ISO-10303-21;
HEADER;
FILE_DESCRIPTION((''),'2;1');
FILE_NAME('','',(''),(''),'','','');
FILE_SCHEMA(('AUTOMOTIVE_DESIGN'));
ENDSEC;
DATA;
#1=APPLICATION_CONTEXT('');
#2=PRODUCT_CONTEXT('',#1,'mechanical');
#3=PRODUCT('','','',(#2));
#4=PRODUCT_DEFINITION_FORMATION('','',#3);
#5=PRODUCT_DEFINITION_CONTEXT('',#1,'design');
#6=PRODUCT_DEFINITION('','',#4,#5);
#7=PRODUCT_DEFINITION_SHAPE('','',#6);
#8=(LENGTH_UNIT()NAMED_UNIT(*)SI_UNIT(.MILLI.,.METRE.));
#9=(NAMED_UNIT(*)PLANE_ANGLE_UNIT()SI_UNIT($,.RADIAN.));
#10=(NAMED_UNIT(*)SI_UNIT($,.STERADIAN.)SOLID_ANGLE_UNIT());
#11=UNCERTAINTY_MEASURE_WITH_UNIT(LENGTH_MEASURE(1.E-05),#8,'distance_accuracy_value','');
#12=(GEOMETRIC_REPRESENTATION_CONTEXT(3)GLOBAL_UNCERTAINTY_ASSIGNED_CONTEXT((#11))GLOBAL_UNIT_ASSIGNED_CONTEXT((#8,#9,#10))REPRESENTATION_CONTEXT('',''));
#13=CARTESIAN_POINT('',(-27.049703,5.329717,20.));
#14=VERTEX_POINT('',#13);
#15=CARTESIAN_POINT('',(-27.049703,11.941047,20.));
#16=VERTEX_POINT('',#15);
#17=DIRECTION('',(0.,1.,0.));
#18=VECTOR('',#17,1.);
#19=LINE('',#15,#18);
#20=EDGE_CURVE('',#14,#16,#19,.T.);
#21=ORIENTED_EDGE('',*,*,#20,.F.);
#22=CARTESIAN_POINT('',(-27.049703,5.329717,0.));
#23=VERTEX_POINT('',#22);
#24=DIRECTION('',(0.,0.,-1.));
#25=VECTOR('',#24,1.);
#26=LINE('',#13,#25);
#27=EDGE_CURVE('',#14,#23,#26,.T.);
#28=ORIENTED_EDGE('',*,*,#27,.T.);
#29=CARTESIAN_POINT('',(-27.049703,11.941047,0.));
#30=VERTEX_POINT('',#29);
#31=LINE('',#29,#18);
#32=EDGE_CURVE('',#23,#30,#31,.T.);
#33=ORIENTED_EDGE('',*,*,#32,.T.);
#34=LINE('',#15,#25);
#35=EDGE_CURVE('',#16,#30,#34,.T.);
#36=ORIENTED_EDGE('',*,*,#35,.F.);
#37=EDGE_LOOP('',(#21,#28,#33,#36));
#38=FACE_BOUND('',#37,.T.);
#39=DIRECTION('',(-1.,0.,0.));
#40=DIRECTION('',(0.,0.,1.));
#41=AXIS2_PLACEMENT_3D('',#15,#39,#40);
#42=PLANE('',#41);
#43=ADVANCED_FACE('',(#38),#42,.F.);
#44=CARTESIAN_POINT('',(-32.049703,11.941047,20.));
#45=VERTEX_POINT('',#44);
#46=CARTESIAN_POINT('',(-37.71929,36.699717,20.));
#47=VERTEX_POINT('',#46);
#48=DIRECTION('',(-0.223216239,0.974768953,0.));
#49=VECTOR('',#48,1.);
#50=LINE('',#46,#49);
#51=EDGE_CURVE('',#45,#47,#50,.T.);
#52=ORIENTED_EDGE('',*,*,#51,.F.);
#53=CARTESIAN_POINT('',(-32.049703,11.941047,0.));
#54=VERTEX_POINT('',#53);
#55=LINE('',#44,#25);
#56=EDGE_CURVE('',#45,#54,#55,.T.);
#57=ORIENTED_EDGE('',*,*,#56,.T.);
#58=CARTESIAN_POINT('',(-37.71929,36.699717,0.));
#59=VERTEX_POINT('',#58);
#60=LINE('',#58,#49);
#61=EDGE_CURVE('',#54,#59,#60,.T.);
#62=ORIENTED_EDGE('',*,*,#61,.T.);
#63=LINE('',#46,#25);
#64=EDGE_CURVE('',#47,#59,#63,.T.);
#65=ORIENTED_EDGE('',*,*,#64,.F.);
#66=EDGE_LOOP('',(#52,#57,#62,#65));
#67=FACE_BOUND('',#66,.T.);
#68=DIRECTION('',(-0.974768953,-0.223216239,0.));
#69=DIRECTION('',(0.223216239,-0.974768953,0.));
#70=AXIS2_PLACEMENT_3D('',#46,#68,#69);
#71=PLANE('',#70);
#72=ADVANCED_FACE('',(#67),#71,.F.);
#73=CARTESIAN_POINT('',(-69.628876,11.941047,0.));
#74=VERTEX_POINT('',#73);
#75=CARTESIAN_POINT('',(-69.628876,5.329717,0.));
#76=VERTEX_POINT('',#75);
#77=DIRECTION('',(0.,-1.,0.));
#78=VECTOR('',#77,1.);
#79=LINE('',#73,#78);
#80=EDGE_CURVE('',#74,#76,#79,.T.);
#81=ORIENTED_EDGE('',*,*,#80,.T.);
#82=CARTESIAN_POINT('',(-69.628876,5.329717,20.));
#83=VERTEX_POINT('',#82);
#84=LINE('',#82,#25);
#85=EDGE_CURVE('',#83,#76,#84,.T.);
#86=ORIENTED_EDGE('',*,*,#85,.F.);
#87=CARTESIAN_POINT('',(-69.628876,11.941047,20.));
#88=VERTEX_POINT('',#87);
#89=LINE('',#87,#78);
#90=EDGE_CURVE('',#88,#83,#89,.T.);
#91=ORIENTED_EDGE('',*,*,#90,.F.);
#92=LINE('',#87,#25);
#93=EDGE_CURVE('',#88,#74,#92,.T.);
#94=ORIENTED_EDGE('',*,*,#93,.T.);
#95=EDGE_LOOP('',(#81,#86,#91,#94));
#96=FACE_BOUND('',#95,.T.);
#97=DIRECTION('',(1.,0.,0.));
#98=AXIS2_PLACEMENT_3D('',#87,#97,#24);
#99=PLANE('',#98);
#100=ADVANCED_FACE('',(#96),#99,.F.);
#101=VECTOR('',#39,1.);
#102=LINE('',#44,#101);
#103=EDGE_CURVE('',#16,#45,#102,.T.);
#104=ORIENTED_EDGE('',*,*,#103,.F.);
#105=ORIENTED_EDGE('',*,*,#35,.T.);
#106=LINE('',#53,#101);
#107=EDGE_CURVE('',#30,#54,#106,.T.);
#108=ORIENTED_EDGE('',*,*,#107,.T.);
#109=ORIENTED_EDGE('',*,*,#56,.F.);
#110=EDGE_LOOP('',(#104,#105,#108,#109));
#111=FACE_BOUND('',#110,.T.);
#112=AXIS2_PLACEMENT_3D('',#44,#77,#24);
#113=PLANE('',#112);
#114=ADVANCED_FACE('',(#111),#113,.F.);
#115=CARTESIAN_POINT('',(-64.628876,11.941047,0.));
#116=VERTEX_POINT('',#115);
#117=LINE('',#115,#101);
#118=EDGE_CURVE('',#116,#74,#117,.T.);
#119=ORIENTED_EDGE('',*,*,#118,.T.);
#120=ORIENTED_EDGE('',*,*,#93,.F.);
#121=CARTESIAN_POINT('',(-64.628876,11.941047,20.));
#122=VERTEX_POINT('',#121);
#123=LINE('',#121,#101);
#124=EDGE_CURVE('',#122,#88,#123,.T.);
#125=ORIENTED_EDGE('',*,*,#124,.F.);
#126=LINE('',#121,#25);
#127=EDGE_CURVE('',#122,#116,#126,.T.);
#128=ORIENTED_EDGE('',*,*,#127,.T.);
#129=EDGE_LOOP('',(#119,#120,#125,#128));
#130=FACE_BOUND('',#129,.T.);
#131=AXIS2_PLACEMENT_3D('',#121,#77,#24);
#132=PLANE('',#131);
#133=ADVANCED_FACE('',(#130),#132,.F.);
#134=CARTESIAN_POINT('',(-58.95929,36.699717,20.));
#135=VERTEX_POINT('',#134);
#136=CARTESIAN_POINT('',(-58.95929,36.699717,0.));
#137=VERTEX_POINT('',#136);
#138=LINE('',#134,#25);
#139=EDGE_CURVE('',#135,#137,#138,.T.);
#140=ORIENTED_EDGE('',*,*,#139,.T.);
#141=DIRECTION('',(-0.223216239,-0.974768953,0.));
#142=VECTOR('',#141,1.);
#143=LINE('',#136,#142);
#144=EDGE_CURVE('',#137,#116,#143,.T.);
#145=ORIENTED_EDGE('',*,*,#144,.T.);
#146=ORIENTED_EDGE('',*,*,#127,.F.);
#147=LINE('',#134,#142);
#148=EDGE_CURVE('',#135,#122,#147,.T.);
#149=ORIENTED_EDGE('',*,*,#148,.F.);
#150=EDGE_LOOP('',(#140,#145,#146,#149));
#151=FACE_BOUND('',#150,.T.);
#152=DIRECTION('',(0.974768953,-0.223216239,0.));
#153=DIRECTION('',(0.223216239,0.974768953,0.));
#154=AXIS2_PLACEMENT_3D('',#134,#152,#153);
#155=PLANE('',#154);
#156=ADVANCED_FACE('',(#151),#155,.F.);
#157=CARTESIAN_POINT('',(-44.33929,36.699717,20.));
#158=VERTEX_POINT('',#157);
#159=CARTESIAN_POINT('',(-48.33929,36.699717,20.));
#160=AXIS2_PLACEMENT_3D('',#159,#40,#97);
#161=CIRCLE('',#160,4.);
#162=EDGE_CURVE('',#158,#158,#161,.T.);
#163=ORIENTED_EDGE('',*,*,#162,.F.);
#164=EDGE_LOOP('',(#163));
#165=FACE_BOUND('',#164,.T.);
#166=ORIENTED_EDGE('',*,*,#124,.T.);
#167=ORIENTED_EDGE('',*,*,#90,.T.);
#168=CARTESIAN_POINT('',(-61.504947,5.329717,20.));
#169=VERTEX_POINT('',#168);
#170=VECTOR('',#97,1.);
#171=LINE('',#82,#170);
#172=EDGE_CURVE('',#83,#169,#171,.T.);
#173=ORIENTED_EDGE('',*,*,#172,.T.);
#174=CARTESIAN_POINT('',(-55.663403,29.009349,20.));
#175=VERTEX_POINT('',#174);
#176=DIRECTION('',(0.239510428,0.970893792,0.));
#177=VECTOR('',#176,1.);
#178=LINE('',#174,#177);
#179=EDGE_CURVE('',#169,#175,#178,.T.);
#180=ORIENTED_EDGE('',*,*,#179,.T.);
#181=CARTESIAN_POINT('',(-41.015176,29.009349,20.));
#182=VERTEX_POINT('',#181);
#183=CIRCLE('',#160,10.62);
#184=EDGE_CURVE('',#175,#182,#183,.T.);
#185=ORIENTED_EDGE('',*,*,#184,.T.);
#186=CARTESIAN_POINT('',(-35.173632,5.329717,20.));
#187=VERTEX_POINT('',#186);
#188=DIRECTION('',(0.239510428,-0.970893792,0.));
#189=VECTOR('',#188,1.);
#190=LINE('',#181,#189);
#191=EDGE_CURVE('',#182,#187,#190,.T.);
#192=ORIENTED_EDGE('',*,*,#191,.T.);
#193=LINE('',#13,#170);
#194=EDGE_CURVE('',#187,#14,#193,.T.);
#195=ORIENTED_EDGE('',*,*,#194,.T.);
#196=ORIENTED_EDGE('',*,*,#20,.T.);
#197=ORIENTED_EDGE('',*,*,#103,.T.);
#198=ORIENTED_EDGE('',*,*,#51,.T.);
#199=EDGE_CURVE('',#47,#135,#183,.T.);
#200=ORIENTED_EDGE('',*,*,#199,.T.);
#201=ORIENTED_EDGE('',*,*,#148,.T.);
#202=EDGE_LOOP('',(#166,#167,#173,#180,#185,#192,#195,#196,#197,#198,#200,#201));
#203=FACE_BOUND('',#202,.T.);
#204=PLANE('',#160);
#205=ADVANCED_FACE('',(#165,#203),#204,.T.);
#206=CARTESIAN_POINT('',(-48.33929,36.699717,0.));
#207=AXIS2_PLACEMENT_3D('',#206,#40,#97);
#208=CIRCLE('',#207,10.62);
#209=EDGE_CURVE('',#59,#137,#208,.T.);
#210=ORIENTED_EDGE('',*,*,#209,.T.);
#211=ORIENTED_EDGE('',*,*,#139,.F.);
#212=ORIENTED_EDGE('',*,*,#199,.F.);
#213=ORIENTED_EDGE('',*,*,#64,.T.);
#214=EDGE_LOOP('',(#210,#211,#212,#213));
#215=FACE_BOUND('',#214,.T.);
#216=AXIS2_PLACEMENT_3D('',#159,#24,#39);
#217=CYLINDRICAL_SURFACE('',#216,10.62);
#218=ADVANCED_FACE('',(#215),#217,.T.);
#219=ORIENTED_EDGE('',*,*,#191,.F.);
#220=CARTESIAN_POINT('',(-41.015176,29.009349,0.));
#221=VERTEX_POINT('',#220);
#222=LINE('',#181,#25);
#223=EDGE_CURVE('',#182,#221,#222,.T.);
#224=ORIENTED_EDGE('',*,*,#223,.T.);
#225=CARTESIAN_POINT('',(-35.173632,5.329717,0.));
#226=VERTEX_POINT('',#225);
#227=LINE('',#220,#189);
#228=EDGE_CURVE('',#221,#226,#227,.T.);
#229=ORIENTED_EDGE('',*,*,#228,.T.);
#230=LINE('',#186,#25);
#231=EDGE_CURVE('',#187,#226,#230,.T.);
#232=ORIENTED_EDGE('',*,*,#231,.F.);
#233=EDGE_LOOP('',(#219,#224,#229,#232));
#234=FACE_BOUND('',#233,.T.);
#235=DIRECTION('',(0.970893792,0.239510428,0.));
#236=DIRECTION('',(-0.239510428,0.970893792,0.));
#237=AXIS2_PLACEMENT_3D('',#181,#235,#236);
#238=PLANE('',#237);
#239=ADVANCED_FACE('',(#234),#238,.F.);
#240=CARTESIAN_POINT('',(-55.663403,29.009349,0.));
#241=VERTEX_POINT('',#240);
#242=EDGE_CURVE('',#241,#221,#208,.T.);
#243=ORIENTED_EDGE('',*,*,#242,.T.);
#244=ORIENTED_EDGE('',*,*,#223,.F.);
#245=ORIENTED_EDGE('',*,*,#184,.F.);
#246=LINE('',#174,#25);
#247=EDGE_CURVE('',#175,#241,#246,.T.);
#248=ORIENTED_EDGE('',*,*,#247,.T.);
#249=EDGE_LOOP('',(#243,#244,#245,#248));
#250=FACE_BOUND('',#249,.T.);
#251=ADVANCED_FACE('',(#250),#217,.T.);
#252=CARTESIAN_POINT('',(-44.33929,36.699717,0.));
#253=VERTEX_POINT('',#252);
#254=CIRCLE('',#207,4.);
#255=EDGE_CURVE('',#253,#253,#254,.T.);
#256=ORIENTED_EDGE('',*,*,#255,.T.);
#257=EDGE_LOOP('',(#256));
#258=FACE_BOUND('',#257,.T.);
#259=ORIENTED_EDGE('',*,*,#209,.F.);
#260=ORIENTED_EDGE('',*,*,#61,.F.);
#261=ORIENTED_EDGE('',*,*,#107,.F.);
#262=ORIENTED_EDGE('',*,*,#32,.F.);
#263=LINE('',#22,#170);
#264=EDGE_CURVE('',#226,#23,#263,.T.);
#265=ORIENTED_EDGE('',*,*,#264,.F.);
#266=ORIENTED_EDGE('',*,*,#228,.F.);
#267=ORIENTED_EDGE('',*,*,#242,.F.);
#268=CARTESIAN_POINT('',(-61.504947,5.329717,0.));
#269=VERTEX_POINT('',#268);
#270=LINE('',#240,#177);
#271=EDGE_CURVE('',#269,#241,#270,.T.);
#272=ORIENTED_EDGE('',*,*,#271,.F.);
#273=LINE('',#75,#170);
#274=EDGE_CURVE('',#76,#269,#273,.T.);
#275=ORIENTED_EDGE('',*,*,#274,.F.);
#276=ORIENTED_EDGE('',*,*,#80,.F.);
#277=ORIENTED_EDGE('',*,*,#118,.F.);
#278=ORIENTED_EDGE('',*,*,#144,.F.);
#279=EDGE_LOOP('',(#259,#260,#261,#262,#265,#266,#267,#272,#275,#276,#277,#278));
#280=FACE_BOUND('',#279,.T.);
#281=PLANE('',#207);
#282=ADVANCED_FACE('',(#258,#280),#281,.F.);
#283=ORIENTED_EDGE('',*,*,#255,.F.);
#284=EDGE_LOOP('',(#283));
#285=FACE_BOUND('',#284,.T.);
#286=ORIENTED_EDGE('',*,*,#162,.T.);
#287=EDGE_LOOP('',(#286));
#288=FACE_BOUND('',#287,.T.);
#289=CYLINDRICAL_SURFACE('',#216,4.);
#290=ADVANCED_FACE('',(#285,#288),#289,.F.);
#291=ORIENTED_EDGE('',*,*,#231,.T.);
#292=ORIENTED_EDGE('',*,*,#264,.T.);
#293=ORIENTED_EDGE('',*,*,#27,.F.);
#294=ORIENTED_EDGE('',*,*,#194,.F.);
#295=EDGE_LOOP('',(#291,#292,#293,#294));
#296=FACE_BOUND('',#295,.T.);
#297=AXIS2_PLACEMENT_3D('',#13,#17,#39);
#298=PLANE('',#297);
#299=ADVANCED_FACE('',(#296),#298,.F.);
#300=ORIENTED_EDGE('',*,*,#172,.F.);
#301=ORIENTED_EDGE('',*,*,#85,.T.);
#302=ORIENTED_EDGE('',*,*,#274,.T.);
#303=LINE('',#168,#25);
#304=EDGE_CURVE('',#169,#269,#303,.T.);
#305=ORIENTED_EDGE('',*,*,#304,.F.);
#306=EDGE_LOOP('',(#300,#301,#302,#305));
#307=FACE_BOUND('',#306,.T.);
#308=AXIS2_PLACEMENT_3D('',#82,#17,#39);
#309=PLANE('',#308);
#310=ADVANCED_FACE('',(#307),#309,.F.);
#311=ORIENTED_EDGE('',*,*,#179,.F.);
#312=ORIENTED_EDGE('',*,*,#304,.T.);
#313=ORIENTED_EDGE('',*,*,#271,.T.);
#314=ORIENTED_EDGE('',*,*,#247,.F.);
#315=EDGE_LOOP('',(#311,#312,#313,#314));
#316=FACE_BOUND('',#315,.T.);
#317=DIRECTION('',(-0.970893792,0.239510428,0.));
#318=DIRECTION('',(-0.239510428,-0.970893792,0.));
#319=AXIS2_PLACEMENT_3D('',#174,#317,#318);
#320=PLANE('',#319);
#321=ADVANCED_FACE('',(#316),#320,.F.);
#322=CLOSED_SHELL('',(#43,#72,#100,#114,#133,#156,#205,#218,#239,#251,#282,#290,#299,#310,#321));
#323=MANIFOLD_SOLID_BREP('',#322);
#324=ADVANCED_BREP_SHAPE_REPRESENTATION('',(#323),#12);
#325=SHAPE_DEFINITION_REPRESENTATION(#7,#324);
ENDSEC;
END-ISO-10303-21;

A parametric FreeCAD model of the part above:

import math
import FreeCAD as App
import Part
import Sketcher

V = App.Vector
Q = App.Units.Quantity

doc = App.newDocument("Part")
params = doc.addObject("Spreadsheet::Sheet", "Params")
for row, (alias, value) in enumerate([
    ("sketch1_diameter", "8 mm"),
    ("sketch1_width", "5 mm"),
    ("sketch1_radius", "10.62 mm"),
    ("pad1_length", "20 mm"),
], start=1):
    params.set(f"A{row}", alias)
    params.set(f"B{row}", "=" + value)
    params.setAlias(f"B{row}", alias)

body = doc.addObject("PartDesign::Body", "Body")

# Sketch on XY plane
sketch1 = body.newObject("Sketcher::SketchObject", "Sketch")
sketch1.AttachmentSupport = (doc.getObject("XY_Plane"), [""])
sketch1.MapMode = "FlatFace"
sketch1.addGeometry([
    Part.LineSegment(V(-32.049703, 11.941047, 0), V(-37.71929, 36.699717, 0)),  # 0
    Part.ArcOfCircle(Part.Circle(V(-48.33929, 36.699717, 0), V(0, 0, 1), 10.62), math.radians(0), math.radians(180)),  # 1
    Part.LineSegment(V(-58.95929, 36.699717, 0), V(-64.628876, 11.941047, 0)),  # 2
    Part.LineSegment(V(-64.628876, 11.941047, 0), V(-69.628876, 11.941047, 0)),  # 3
    Part.LineSegment(V(-69.628876, 11.941047, 0), V(-69.628876, 5.329717, 0)),  # 4
    Part.LineSegment(V(-69.628876, 5.329717, 0), V(-61.504947, 5.329717, 0)),  # 5
    Part.LineSegment(V(-61.504947, 5.329717, 0), V(-55.663403, 29.009349, 0)),  # 6
    Part.ArcOfCircle(Part.Circle(V(-48.33929, 36.699717, 0), V(0, 0, 1), 10.62), math.radians(-133.602639), math.radians(-46.397361)),  # 7
    Part.LineSegment(V(-41.015176, 29.009349, 0), V(-35.173632, 5.329717, 0)),  # 8
    Part.LineSegment(V(-35.173632, 5.329717, 0), V(-27.049703, 5.329717, 0)),  # 9
    Part.LineSegment(V(-27.049703, 5.329717, 0), V(-27.049703, 11.941047, 0)),  # 10
    Part.LineSegment(V(-27.049703, 11.941047, 0), V(-32.049703, 11.941047, 0)),  # 11
    Part.Circle(V(-48.33929, 36.699717, 0), V(0, 0, 1), 4),  # 12
], False)
sketch1.addConstraint([
    Sketcher.Constraint("Coincident", 0, 2, 1, 1),
    Sketcher.Constraint("Coincident", 1, 2, 2, 1),
    Sketcher.Constraint("Coincident", 2, 2, 3, 1),
    Sketcher.Constraint("Coincident", 3, 2, 4, 1),
    Sketcher.Constraint("Coincident", 4, 2, 5, 1),
    Sketcher.Constraint("Coincident", 5, 2, 6, 1),
    Sketcher.Constraint("Coincident", 6, 2, 7, 1),
    Sketcher.Constraint("Coincident", 7, 2, 8, 1),
    Sketcher.Constraint("Coincident", 8, 2, 9, 1),
    Sketcher.Constraint("Coincident", 9, 2, 10, 1),
    Sketcher.Constraint("Coincident", 10, 2, 11, 1),
    Sketcher.Constraint("Coincident", 11, 2, 0, 1),
    Sketcher.Constraint("Horizontal", 3),
    Sketcher.Constraint("Vertical", 4),
    Sketcher.Constraint("Horizontal", 5),
    Sketcher.Constraint("Horizontal", 9),
    Sketcher.Constraint("Vertical", 10),
    Sketcher.Constraint("Horizontal", 11),
    Sketcher.Constraint("Coincident", 7, 3, 1, 3),
    Sketcher.Constraint("Coincident", 12, 3, 1, 3),
    Sketcher.Constraint("Equal", 1, 7),
    Sketcher.Constraint("Horizontal", 12, 3, 0, 2),
    Sketcher.Constraint("Horizontal", 0, 2, 1, 2),
    Sketcher.Constraint("Horizontal", 6, 2, 7, 2),
    Sketcher.Constraint("Horizontal", 5, 2, 8, 2),
    Sketcher.Constraint("Horizontal", 3, 2, 10, 2),
    Sketcher.Constraint("Equal", 5, 9),
    Sketcher.Constraint("Equal", 3, 11),
    Sketcher.Constraint("Equal", 0, 2),
    Sketcher.Constraint("Diameter", 12, Q("8 mm")),
    Sketcher.Constraint("DistanceX", 3, 2, 3, 1, Q("5 mm")),
    Sketcher.Constraint("Radius", 1, Q("10.62 mm")),
    Sketcher.Constraint("DistanceY", 4, 2, 1, 2, Q("31.37 mm")),
    Sketcher.Constraint("DistanceX", 5, 1, 5, 2, Q("8.123929 mm")),
    Sketcher.Constraint("DistanceY", 4, 2, 4, 1, Q("6.61133 mm")),
    Sketcher.Constraint("DistanceY", 2, 2, 6, 2, Q("17.068302 mm")),
    Sketcher.Constraint("DistanceX", 6, 2, 9, 2, Q("28.613701 mm")),
    Sketcher.Constraint("DistanceX", 1, 3, -1, 1, Q("48.33929 mm")),
    Sketcher.Constraint("DistanceY", -1, 1, 6, 2, Q("29.009349 mm")),
])
sketch1.setExpression("Constraints[29]", "Params.sketch1_diameter")
sketch1.setExpression("Constraints[30]", "Params.sketch1_width")
sketch1.setExpression("Constraints[31]", "Params.sketch1_radius")
pad1 = body.newObject("PartDesign::Pad", "Pad")
pad1.Profile = sketch1
pad1.setExpression("Length", "Params.pad1_length")

doc.recompute()
